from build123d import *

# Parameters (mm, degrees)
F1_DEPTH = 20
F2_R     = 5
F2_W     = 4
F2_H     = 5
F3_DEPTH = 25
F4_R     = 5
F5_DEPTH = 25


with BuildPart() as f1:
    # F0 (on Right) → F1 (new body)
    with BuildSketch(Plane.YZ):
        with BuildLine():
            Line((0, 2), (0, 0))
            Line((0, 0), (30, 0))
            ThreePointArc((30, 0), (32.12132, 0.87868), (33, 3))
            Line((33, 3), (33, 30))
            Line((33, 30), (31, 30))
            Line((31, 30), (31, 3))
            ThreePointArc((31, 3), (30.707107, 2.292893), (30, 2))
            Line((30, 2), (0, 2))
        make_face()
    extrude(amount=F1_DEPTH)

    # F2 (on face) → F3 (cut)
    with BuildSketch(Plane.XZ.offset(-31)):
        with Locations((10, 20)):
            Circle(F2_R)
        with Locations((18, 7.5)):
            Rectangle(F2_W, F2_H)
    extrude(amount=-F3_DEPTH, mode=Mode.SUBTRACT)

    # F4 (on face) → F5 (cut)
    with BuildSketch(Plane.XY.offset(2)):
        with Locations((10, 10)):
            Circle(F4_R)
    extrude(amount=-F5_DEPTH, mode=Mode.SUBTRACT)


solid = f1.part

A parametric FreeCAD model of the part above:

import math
import FreeCAD as App
import Part
import Sketcher
from FreeCAD import Vector
Q = App.Units.Quantity


def add_polygon(sketch, points):
    """Adds a closed chain of lines whose ends are joined by coincident constraints."""
    first, n = sketch.GeometryCount, len(points)
    for a, b in zip(points, points[1:] + points[:1]):
        sketch.addGeometry(Part.LineSegment(App.Vector(*a, 0), App.Vector(*b, 0)), False)
    for i in range(n):
        sketch.addConstraint(Sketcher.Constraint("Coincident", first + i, 2, first + (i + 1) % n, 1))

doc = App.newDocument("Part")
body = doc.addObject("PartDesign::Body", "Body")

# Sketch on YZ plane
sketch1 = body.newObject("Sketcher::SketchObject", "Sketch")
sketch1.AttachmentSupport = (doc.getObject("YZ_Plane"), [""])
sketch1.MapMode = "FlatFace"
sketch1.addGeometry(Part.LineSegment(Vector(0, 2, 0), Vector(0, 0, 0)), False)
sketch1.addGeometry(Part.LineSegment(Vector(0, 0, 0), Vector(30, 0, 0)), False)
sketch1.addGeometry(Part.ArcOfCircle(Part.Circle(Vector(30, 3, 0), Vector(0, 0, 1), 3), math.radians(-90), math.radians(0)), False)
sketch1.addGeometry(Part.LineSegment(Vector(33, 3, 0), Vector(33, 30, 0)), False)
sketch1.addGeometry(Part.LineSegment(Vector(33, 30, 0), Vector(31, 30, 0)), False)
sketch1.addGeometry(Part.LineSegment(Vector(31, 30, 0), Vector(31, 3, 0)), False)
sketch1.addGeometry(Part.ArcOfCircle(Part.Circle(Vector(30, 3, 0), Vector(0, 0, 1), 1), math.radians(-90), math.radians(0)), False)
sketch1.addGeometry(Part.LineSegment(Vector(30, 2, 0), Vector(0, 2, 0)), False)
sketch1.addConstraint(Sketcher.Constraint("Coincident", 0, 2, 1, 1))
sketch1.addConstraint(Sketcher.Constraint("Tangent", 1, 2, 2, 1))
sketch1.addConstraint(Sketcher.Constraint("Tangent", 2, 2, 3, 1))
sketch1.addConstraint(Sketcher.Constraint("Coincident", 3, 2, 4, 1))
sketch1.addConstraint(Sketcher.Constraint("Coincident", 4, 2, 5, 1))
sketch1.addConstraint(Sketcher.Constraint("Tangent", 5, 2, 6, 2))
sketch1.addConstraint(Sketcher.Constraint("Tangent", 6, 1, 7, 1))
sketch1.addConstraint(Sketcher.Constraint("Coincident", 7, 2, 0, 1))
sketch1.addConstraint(Sketcher.Constraint("Vertical", 0))
sketch1.addConstraint(Sketcher.Constraint("Horizontal", 1))
sketch1.addConstraint(Sketcher.Constraint("Vertical", 3))
sketch1.addConstraint(Sketcher.Constraint("Horizontal", 4))
sketch1.addConstraint(Sketcher.Constraint("Vertical", 5))
sketch1.addConstraint(Sketcher.Constraint("Horizontal", 7))
sketch1.addConstraint(Sketcher.Constraint("Coincident", 0, 2, -1, 1))
sketch1.addConstraint(Sketcher.Constraint("Coincident", 6, 3, 2, 3))
sketch1.addConstraint(Sketcher.Constraint("Radius", 2, Q("3.000001 mm")))
sketch1.addConstraint(Sketcher.Constraint("Radius", 6, Q("0.999999 mm")))
sketch1.addConstraint(Sketcher.Constraint("DistanceX", 1, 1, 1, 2, Q("30 mm")))
sketch1.addConstraint(Sketcher.Constraint("DistanceY", 3, 1, 3, 2, Q("27 mm")))
pad1 = body.newObject("PartDesign::Pad", "Pad")
pad1.Profile = sketch1
pad1.Length = 20

# Sketch on XZ plane
sketch2 = body.newObject("Sketcher::SketchObject", "Sketch001")
sketch2.AttachmentSupport = (doc.getObject("XZ_Plane"), [""])
sketch2.MapMode = "FlatFace"
sketch2.AttachmentOffset = App.Placement(Vector(0, 0, -31), App.Rotation())
sketch2.addGeometry(Part.Circle(Vector(10, 20, 0), Vector(0, 0, 1), 5), False)  # 0
add_polygon(sketch2, [(16, 10), (16, 5), (20, 5), (20, 10)])  # lines 1-4
sketch2.addConstraint(Sketcher.Constraint("Vertical", 1))
sketch2.addConstraint(Sketcher.Constraint("Horizontal", 2))
sketch2.addConstraint(Sketcher.Constraint("Vertical", 3))
sketch2.addConstraint(Sketcher.Constraint("Horizontal", 4))
sketch2.addConstraint(Sketcher.Constraint("Diameter", 0, Q("10 mm")))
sketch2.addConstraint(Sketcher.Constraint("DistanceX", 2, 1, 2, 2, Q("4 mm")))
sketch2.addConstraint(Sketcher.Constraint("DistanceY", 1, 2, 1, 1, Q("5 mm")))
sketch2.addConstraint(Sketcher.Constraint("DistanceX", -1, 1, 0, 3, Q("10 mm")))
sketch2.addConstraint(Sketcher.Constraint("DistanceY", -1, 1, 0, 3, Q("20 mm")))
sketch2.addConstraint(Sketcher.Constraint("DistanceX", -1, 1, 1, 2, Q("16 mm")))
sketch2.addConstraint(Sketcher.Constraint("DistanceY", -1, 1, 1, 2, Q("5 mm")))
pocket1 = body.newObject("PartDesign::Pocket", "Pocket")
pocket1.Profile = sketch2
pocket1.Length = 25

# Sketch on XY plane
sketch3 = body.newObject("Sketcher::SketchObject", "Sketch002")
sketch3.AttachmentSupport = (doc.getObject("XY_Plane"), [""])
sketch3.MapMode = "FlatFace"
sketch3.AttachmentOffset = App.Placement(Vector(0, 0, 2), App.Rotation())
sketch3.addGeometry(Part.Circle(Vector(10, 10, 0), Vector(0, 0, 1), 5), False)
sketch3.addConstraint(Sketcher.Constraint("Diameter", 0, Q("10 mm")))
sketch3.addConstraint(Sketcher.Constraint("DistanceX", -1, 1, 0, 3, Q("10 mm")))
sketch3.addConstraint(Sketcher.Constraint("DistanceY", -1, 1, 0, 3, Q("10 mm")))
pocket2 = body.newObject("PartDesign::Pocket", "Pocket001")
pocket2.Profile = sketch3
pocket2.Length = 25

doc.recompute()
